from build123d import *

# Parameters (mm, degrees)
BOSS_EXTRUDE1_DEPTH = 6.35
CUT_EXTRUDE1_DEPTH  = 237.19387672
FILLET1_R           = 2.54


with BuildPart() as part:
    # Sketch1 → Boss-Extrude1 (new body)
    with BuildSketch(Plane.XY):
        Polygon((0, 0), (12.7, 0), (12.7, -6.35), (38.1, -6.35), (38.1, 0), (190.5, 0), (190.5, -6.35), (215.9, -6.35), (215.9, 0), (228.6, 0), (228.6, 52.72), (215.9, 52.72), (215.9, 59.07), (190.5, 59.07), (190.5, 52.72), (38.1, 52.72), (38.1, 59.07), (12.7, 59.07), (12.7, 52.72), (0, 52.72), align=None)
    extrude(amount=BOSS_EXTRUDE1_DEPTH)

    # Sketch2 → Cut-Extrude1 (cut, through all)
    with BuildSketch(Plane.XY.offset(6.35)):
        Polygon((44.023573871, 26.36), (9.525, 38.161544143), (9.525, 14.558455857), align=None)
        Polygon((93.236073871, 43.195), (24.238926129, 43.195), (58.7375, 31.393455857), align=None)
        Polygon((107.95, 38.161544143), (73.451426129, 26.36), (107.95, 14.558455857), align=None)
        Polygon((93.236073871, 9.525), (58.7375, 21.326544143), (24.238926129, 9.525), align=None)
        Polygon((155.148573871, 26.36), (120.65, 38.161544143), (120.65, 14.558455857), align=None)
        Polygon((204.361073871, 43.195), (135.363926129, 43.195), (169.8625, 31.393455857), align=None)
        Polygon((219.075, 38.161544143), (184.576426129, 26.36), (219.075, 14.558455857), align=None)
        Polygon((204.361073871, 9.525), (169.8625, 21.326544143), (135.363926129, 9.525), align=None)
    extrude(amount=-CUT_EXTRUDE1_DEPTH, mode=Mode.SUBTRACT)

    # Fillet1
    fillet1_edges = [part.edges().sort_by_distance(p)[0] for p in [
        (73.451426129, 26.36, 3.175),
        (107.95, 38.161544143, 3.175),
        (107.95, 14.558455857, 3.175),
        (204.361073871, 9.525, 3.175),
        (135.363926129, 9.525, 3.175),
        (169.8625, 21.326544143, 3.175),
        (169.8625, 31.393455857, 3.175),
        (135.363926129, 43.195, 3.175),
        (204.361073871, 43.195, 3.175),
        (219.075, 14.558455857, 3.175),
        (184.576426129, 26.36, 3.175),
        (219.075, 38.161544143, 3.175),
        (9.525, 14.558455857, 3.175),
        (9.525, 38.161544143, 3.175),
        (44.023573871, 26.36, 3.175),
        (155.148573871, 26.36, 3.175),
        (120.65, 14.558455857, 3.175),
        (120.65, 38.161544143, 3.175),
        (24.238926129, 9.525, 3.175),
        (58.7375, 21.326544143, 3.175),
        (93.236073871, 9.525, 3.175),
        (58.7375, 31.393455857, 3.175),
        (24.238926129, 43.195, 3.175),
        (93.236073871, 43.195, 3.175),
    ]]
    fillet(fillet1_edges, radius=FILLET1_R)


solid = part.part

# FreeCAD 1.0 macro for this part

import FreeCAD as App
import Part
import Sketcher
from FreeCAD import Vector
Q = App.Units.Quantity


def edges_at(feature, points):
    """Names of the edges that pass closest to the given points."""
    edges = feature.Shape.Edges
    near = lambda p: min(range(len(edges)), key=lambda i: edges[i].distToShape(Part.Vertex(*p))[0])
    return sorted({f"Edge{near(p) + 1}" for p in points})

doc = App.newDocument("Part")
params = doc.addObject("Spreadsheet::Sheet", "Params")
for row, (alias, value) in enumerate([
    ("sketch1_width", "1 in"),
    ("sketch1_width2", "6 in"),
    ("sketch1_width3", "0.5 in"),
    ("sketch1_height", "0.25 in"),
    ("pad1_length", "0.25 in"),
    ("fillet_radius", "0.1 in"),
], start=1):
    params.set(f"A{row}", alias)
    params.set(f"B{row}", "=" + value)
    params.setAlias(f"B{row}", alias)

body = doc.addObject("PartDesign::Body", "Body")

# Sketch on XY plane
sketch1 = doc.addObject("Sketcher::SketchObject", "Sketch")
body.addObject(sketch1)
sketch1.AttachmentSupport = (doc.XY_Plane, [""])
sketch1.MapMode = "FlatFace"
sketch1.addGeometry(Part.LineSegment(Vector(0, 0, 0), Vector(13, 0, 0)), False)
sketch1.addGeometry(Part.LineSegment(Vector(13, 0, 0), Vector(13, -6, 0)), False)
sketch1.addGeometry(Part.LineSegment(Vector(13, -6, 0), Vector(38, -6, 0)), False)
sketch1.addGeometry(Part.LineSegment(Vector(38, -6, 0), Vector(38, 0, 0)), False)
sketch1.addGeometry(Part.LineSegment(Vector(38, 0, 0), Vector(190, 0, 0)), False)
sketch1.addGeometry(Part.LineSegment(Vector(190, 0, 0), Vector(190, -6, 0)), False)
sketch1.addGeometry(Part.LineSegment(Vector(190, -6, 0), Vector(216, -6, 0)), False)
sketch1.addGeometry(Part.LineSegment(Vector(216, -6, 0), Vector(216, 0, 0)), False)
sketch1.addGeometry(Part.LineSegment(Vector(216, 0, 0), Vector(229, 0, 0)), False)
sketch1.addGeometry(Part.LineSegment(Vector(229, 0, 0), Vector(229, 53, 0)), False)
sketch1.addGeometry(Part.LineSegment(Vector(229, 53, 0), Vector(216, 53, 0)), False)
sketch1.addGeometry(Part.LineSegment(Vector(216, 53, 0), Vector(216, 59, 0)), False)
sketch1.addGeometry(Part.LineSegment(Vector(216, 59, 0), Vector(190, 59, 0)), False)
sketch1.addGeometry(Part.LineSegment(Vector(190, 59, 0), Vector(190, 53, 0)), False)
sketch1.addGeometry(Part.LineSegment(Vector(190, 53, 0), Vector(38, 53, 0)), False)
sketch1.addGeometry(Part.LineSegment(Vector(38, 53, 0), Vector(38, 59, 0)), False)
sketch1.addGeometry(Part.LineSegment(Vector(38, 59, 0), Vector(13, 59, 0)), False)
sketch1.addGeometry(Part.LineSegment(Vector(13, 59, 0), Vector(13, 53, 0)), False)
sketch1.addGeometry(Part.LineSegment(Vector(13, 53, 0), Vector(0, 53, 0)), False)
sketch1.addGeometry(Part.LineSegment(Vector(0, 53, 0), Vector(0, 0, 0)), False)
sketch1.addConstraint(Sketcher.Constraint("Coincident", 0, 2, 1, 1))
sketch1.addConstraint(Sketcher.Constraint("Coincident", 1, 2, 2, 1))
sketch1.addConstraint(Sketcher.Constraint("Coincident", 2, 2, 3, 1))
sketch1.addConstraint(Sketcher.Constraint("Coincident", 3, 2, 4, 1))
sketch1.addConstraint(Sketcher.Constraint("Coincident", 4, 2, 5, 1))
sketch1.addConstraint(Sketcher.Constraint("Coincident", 5, 2, 6, 1))
sketch1.addConstraint(Sketcher.Constraint("Coincident", 6, 2, 7, 1))
sketch1.addConstraint(Sketcher.Constraint("Coincident", 7, 2, 8, 1))
sketch1.addConstraint(Sketcher.Constraint("Coincident", 8, 2, 9, 1))
sketch1.addConstraint(Sketcher.Constraint("Coincident", 9, 2, 10, 1))
sketch1.addConstraint(Sketcher.Constraint("Coincident", 10, 2, 11, 1))
sketch1.addConstraint(Sketcher.Constraint("Coincident", 11, 2, 12, 1))
sketch1.addConstraint(Sketcher.Constraint("Coincident", 12, 2, 13, 1))
sketch1.addConstraint(Sketcher.Constraint("Coincident", 13, 2, 14, 1))
sketch1.addConstraint(Sketcher.Constraint("Coincident", 14, 2, 15, 1))
sketch1.addConstraint(Sketcher.Constraint("Coincident", 15, 2, 16, 1))
sketch1.addConstraint(Sketcher.Constraint("Coincident", 16, 2, 17, 1))
sketch1.addConstraint(Sketcher.Constraint("Coincident", 17, 2, 18, 1))
sketch1.addConstraint(Sketcher.Constraint("Coincident", 18, 2, 19, 1))
sketch1.addConstraint(Sketcher.Constraint("Coincident", 19, 2, 0, 1))
sketch1.addConstraint(Sketcher.Constraint("Horizontal", 0))
sketch1.addConstraint(Sketcher.Constraint("Vertical", 1))
sketch1.addConstraint(Sketcher.Constraint("Horizontal", 2))
sketch1.addConstraint(Sketcher.Constraint("Vertical", 3))
sketch1.addConstraint(Sketcher.Constraint("Horizontal", 4))
sketch1.addConstraint(Sketcher.Constraint("Vertical", 5))
sketch1.addConstraint(Sketcher.Constraint("Horizontal", 6))
sketch1.addConstraint(Sketcher.Constraint("Vertical", 7))
sketch1.addConstraint(Sketcher.Constraint("Horizontal", 8))
sketch1.addConstraint(Sketcher.Constraint("Vertical", 9))
sketch1.addConstraint(Sketcher.Constraint("Horizontal", 10))
sketch1.addConstraint(Sketcher.Constraint("Vertical", 11))
sketch1.addConstraint(Sketcher.Constraint("Horizontal", 12))
sketch1.addConstraint(Sketcher.Constraint("Vertical", 13))
sketch1.addConstraint(Sketcher.Constraint("Horizontal", 14))
sketch1.addConstraint(Sketcher.Constraint("Vertical", 15))
sketch1.addConstraint(Sketcher.Constraint("Horizontal", 16))
sketch1.addConstraint(Sketcher.Constraint("Vertical", 17))
sketch1.addConstraint(Sketcher.Constraint("Horizontal", 18))
sketch1.addConstraint(Sketcher.Constraint("Vertical", 19))
sketch1.addConstraint(Sketcher.Constraint("Coincident", 19, 2, -1, 1))
sketch1.addConstraint(Sketcher.Constraint("PointOnObject", 3, 2, -1))
sketch1.addConstraint(Sketcher.Constraint("PointOnObject", 7, 2, -1))
sketch1.addConstraint(Sketcher.Constraint("Horizontal", 2, 2, 5, 2))
sketch1.addConstraint(Sketcher.Constraint("Horizontal", 10, 2, 13, 2))
sketch1.addConstraint(Sketcher.Constraint("Horizontal", 12, 2, 15, 2))
sketch1.addConstraint(Sketcher.Constraint("Horizontal", 14, 2, 17, 2))
sketch1.addConstraint(Sketcher.Constraint("Vertical", 7, 2, 10, 2))
sketch1.addConstraint(Sketcher.Constraint("Vertical", 5, 2, 12, 2))
sketch1.addConstraint(Sketcher.Constraint("Vertical", 3, 2, 14, 2))
sketch1.addConstraint(Sketcher.Constraint("Vertical", 1, 2, 16, 2))
sketch1.addConstraint(Sketcher.Constraint("Equal", 2, 6))
sketch1.addConstraint(Sketcher.Constraint("Equal", 0, 8))
sketch1.addConstraint(Sketcher.Constraint("Equal", 7, 11))
sketch1.addConstraint(Sketcher.Constraint("DistanceX", 2, 1, 2, 2, Q("1 in")))
sketch1.addConstraint(Sketcher.Constraint("DistanceX", 4, 1, 4, 2, Q("6 in")))
sketch1.addConstraint(Sketcher.Constraint("DistanceX", 0, 1, 0, 2, Q("0.5 in")))
sketch1.addConstraint(Sketcher.Constraint("DistanceY", 1, 2, 1, 1, Q("0.25 in")))
sketch1.addConstraint(Sketcher.Constraint("DistanceY", 9, 1, 9, 2, Q("52.72 mm")))
sketch1.setExpression("Constraints[54]", "Params.sketch1_width")
sketch1.setExpression("Constraints[55]", "Params.sketch1_width2")
sketch1.setExpression("Constraints[56]", "Params.sketch1_width3")
sketch1.setExpression("Constraints[57]", "Params.sketch1_height")
pad1 = doc.addObject("PartDesign::Pad", "Pad")
body.addObject(pad1)
pad1.Profile = sketch1
pad1.setExpression("Length", "Params.pad1_length")

# Sketch on XY plane
sketch2 = doc.addObject("Sketcher::SketchObject", "Sketch001")
body.addObject(sketch2)
sketch2.AttachmentSupport = (doc.XY_Plane, [""])
sketch2.MapMode = "FlatFace"
sketch2.AttachmentOffset = App.Placement(Vector(0, 0, 0.25 * 25.4), App.Rotation())
sketch2.addGeometry(Part.LineSegment(Vector(44, 26, 0), Vector(10, 38, 0)), False)
sketch2.addGeometry(Part.LineSegment(Vector(10, 38, 0), Vector(10, 15, 0)), False)
sketch2.addGeometry(Part.LineSegment(Vector(10, 15, 0), Vector(44, 26, 0)), False)
sketch2.addGeometry(Part.LineSegment(Vector(93, 43, 0), Vector(24, 43, 0)), False)
sketch2.addGeometry(Part.LineSegment(Vector(24, 43, 0), Vector(59, 31, 0)), False)
sketch2.addGeometry(Part.LineSegment(Vector(59, 31, 0), Vector(93, 43, 0)), False)
sketch2.addGeometry(Part.LineSegment(Vector(108, 38, 0), Vector(73, 26, 0)), False)
sketch2.addGeometry(Part.LineSegment(Vector(73, 26, 0), Vector(108, 15, 0)), False)
sketch2.addGeometry(Part.LineSegment(Vector(108, 15, 0), Vector(108, 38, 0)), False)
sketch2.addGeometry(Part.LineSegment(Vector(93, 10, 0), Vector(59, 21, 0)), False)
sketch2.addGeometry(Part.LineSegment(Vector(59, 21, 0), Vector(24, 10, 0)), False)
sketch2.addGeometry(Part.LineSegment(Vector(24, 10, 0), Vector(93, 10, 0)), False)
sketch2.addGeometry(Part.LineSegment(Vector(155, 26, 0), Vector(121, 38, 0)), False)
sketch2.addGeometry(Part.LineSegment(Vector(121, 38, 0), Vector(121, 15, 0)), False)
sketch2.addGeometry(Part.LineSegment(Vector(121, 15, 0), Vector(155, 26, 0)), False)
sketch2.addGeometry(Part.LineSegment(Vector(204, 43, 0), Vector(135, 43, 0)), False)
sketch2.addGeometry(Part.LineSegment(Vector(135, 43, 0), Vector(170, 31, 0)), False)
sketch2.addGeometry(Part.LineSegment(Vector(170, 31, 0), Vector(204, 43, 0)), False)
sketch2.addGeometry(Part.LineSegment(Vector(219, 38, 0), Vector(185, 26, 0)), False)
sketch2.addGeometry(Part.LineSegment(Vector(185, 26, 0), Vector(219, 15, 0)), False)
sketch2.addGeometry(Part.LineSegment(Vector(219, 15, 0), Vector(219, 38, 0)), False)
sketch2.addGeometry(Part.LineSegment(Vector(204, 10, 0), Vector(170, 21, 0)), False)
sketch2.addGeometry(Part.LineSegment(Vector(170, 21, 0), Vector(135, 10, 0)), False)
sketch2.addGeometry(Part.LineSegment(Vector(135, 10, 0), Vector(204, 10, 0)), False)
sketch2.addConstraint(Sketcher.Constraint("Coincident", 0, 2, 1, 1))
sketch2.addConstraint(Sketcher.Constraint("Coincident", 1, 2, 2, 1))
sketch2.addConstraint(Sketcher.Constraint("Coincident", 2, 2, 0, 1))
sketch2.addConstraint(Sketcher.Constraint("Coincident", 3, 2, 4, 1))
sketch2.addConstraint(Sketcher.Constraint("Coincident", 4, 2, 5, 1))
sketch2.addConstraint(Sketcher.Constraint("Coincident", 5, 2, 3, 1))
sketch2.addConstraint(Sketcher.Constraint("Coincident", 6, 2, 7, 1))
sketch2.addConstraint(Sketcher.Constraint("Coincident", 7, 2, 8, 1))
sketch2.addConstraint(Sketcher.Constraint("Coincident", 8, 2, 6, 1))
sketch2.addConstraint(Sketcher.Constraint("Coincident", 9, 2, 10, 1))
sketch2.addConstraint(Sketcher.Constraint("Coincident", 10, 2, 11, 1))
sketch2.addConstraint(Sketcher.Constraint("Coincident", 11, 2, 9, 1))
sketch2.addConstraint(Sketcher.Constraint("Coincident", 12, 2, 13, 1))
sketch2.addConstraint(Sketcher.Constraint("Coincident", 13, 2, 14, 1))
sketch2.addConstraint(Sketcher.Constraint("Coincident", 14, 2, 12, 1))
sketch2.addConstraint(Sketcher.Constraint("Coincident", 15, 2, 16, 1))
sketch2.addConstraint(Sketcher.Constraint("Coincident", 16, 2, 17, 1))
sketch2.addConstraint(Sketcher.Constraint("Coincident", 17, 2, 15, 1))
sketch2.addConstraint(Sketcher.Constraint("Coincident", 18, 2, 19, 1))
sketch2.addConstraint(Sketcher.Constraint("Coincident", 19, 2, 20, 1))
sketch2.addConstraint(Sketcher.Constraint("Coincident", 20, 2, 18, 1))
sketch2.addConstraint(Sketcher.Constraint("Coincident", 21, 2, 22, 1))
sketch2.addConstraint(Sketcher.Constraint("Coincident", 22, 2, 23, 1))
sketch2.addConstraint(Sketcher.Constraint("Coincident", 23, 2, 21, 1))
sketch2.addConstraint(Sketcher.Constraint("Vertical", 1))
sketch2.addConstraint(Sketcher.Constraint("Horizontal", 3))
sketch2.addConstraint(Sketcher.Constraint("Vertical", 8))
sketch2.addConstraint(Sketcher.Constraint("Horizontal", 11))
sketch2.addConstraint(Sketcher.Constraint("Vertical", 13))
sketch2.addConstraint(Sketcher.Constraint("Horizontal", 15))
sketch2.addConstraint(Sketcher.Constraint("Vertical", 20))
sketch2.addConstraint(Sketcher.Constraint("Horizontal", 23))
sketch2.addConstraint(Sketcher.Constraint("Parallel", 0, 4))
sketch2.addConstraint(Sketcher.Constraint("Parallel", 2, 5))
sketch2.addConstraint(Sketcher.Constraint("Parallel", 5, 6))
sketch2.addConstraint(Sketcher.Constraint("Parallel", 4, 7))
sketch2.addConstraint(Sketcher.Constraint("Parallel", 7, 9))
sketch2.addConstraint(Sketcher.Constraint("Parallel", 6, 10))
sketch2.addConstraint(Sketcher.Constraint("Parallel", 9, 12))
sketch2.addConstraint(Sketcher.Constraint("Parallel", 10, 14))
sketch2.addConstraint(Sketcher.Constraint("Parallel", 12, 16))
sketch2.addConstraint(Sketcher.Constraint("Parallel", 14, 17))
sketch2.addConstraint(Sketcher.Constraint("Parallel", 17, 18))
sketch2.addConstraint(Sketcher.Constraint("Parallel", 16, 19))
sketch2.addConstraint(Sketcher.Constraint("Parallel", 19, 21))
sketch2.addConstraint(Sketcher.Constraint("Parallel", 18, 22))
sketch2.addConstraint(Sketcher.Constraint("Horizontal", 2, 2, 6, 2))
sketch2.addConstraint(Sketcher.Constraint("Horizontal", 1, 2, 7, 2))
sketch2.addConstraint(Sketcher.Constraint("Horizontal", 0, 2, 8, 2))
sketch2.addConstraint(Sketcher.Constraint("Horizontal", 8, 2, 12, 2))
sketch2.addConstraint(Sketcher.Constraint("Horizontal", 7, 2, 13, 2))
sketch2.addConstraint(Sketcher.Constraint("Horizontal", 5, 2, 15, 2))
sketch2.addConstraint(Sketcher.Constraint("Horizontal", 4, 2, 16, 2))
sketch2.addConstraint(Sketcher.Constraint("Horizontal", 14, 2, 18, 2))
sketch2.addConstraint(Sketcher.Constraint("Horizontal", 13, 2, 19, 2))
sketch2.addConstraint(Sketcher.Constraint("Horizontal", 9, 2, 21, 2))
sketch2.addConstraint(Sketcher.Constraint("Horizontal", 11, 2, 22, 2))
sketch2.addConstraint(Sketcher.Constraint("Vertical", 4, 2, 9, 2))
sketch2.addConstraint(Sketcher.Constraint("Vertical", 3, 2, 10, 2))
sketch2.addConstraint(Sketcher.Constraint("Vertical", 16, 2, 21, 2))
sketch2.addConstraint(Sketcher.Constraint("Equal", 2, 4))
sketch2.addConstraint(Sketcher.Constraint("DistanceX", 8, 2, 12, 2, Q("0.5 in")))
sketch2.addConstraint(Sketcher.Constraint("DistanceX", -1, 1, 7, 2, Q("4.25 in")))
sketch2.addConstraint(Sketcher.Constraint("DistanceX", -1, 1, 0, 2, Q("0.375 in")))
sketch2.addConstraint(Sketcher.Constraint("DistanceX", -1, 1, 4, 2, Q("2.3125 in")))
sketch2.addConstraint(Sketcher.Constraint("DistanceY", -1, 1, 10, 2, Q("0.375 in")))
sketch2.addConstraint(Sketcher.Constraint("DistanceX", -1, 1, 16, 2, Q("6.6875 in")))
sketch2.addConstraint(Sketcher.Constraint("DistanceX", -1, 1, 19, 2, Q("8.625 in")))
sketch2.addConstraint(Sketcher.Constraint("DistanceY", 1, 2, 1, 1, Q("23.603088 mm")))
sketch2.addConstraint(Sketcher.Constraint("DistanceY", -1, 1, 2, 2, Q("26.36 mm")))
sketch2.addConstraint(Sketcher.Constraint("DistanceY", -1, 1, 3, 2, Q("43.195 mm")))
sketch2.addConstraint(Sketcher.Constraint("DistanceX", 3, 2, 3, 1, Q("68.997148 mm")))
pocket1 = doc.addObject("PartDesign::Pocket", "Pocket")
body.addObject(pocket1)
pocket1.Profile = sketch2
pocket1.Type = "ThroughAll"
doc.recompute()

fillet = doc.addObject("PartDesign::Fillet", "Fillet")
body.addObject(fillet)
fillet.Base = (pocket1, edges_at(pocket1, [
    (73.451, 26.36, 3.175),
    (107.95, 38.162, 3.175),
    (107.95, 14.558, 3.175),
    (204.361, 9.525, 3.175),
    (135.364, 9.525, 3.175),
    (169.863, 21.327, 3.175),
    (169.863, 31.393, 3.175),
    (135.364, 43.195, 3.175),
    (204.361, 43.195, 3.175),
    (219.075, 14.558, 3.175),
    (184.576, 26.36, 3.175),
    (219.075, 38.162, 3.175),
    (9.525, 14.558, 3.175),
    (9.525, 38.162, 3.175),
    (44.024, 26.36, 3.175),
    (155.149, 26.36, 3.175),
    (120.65, 14.558, 3.175),
    (120.65, 38.162, 3.175),
    (24.239, 9.525, 3.175),
    (58.737, 21.327, 3.175),
    (93.236, 9.525, 3.175),
    (58.737, 31.393, 3.175),
    (24.239, 43.195, 3.175),
    (93.236, 43.195, 3.175),
]))
fillet.setExpression("Radius", "Params.fillet_radius")

doc.recompute()
